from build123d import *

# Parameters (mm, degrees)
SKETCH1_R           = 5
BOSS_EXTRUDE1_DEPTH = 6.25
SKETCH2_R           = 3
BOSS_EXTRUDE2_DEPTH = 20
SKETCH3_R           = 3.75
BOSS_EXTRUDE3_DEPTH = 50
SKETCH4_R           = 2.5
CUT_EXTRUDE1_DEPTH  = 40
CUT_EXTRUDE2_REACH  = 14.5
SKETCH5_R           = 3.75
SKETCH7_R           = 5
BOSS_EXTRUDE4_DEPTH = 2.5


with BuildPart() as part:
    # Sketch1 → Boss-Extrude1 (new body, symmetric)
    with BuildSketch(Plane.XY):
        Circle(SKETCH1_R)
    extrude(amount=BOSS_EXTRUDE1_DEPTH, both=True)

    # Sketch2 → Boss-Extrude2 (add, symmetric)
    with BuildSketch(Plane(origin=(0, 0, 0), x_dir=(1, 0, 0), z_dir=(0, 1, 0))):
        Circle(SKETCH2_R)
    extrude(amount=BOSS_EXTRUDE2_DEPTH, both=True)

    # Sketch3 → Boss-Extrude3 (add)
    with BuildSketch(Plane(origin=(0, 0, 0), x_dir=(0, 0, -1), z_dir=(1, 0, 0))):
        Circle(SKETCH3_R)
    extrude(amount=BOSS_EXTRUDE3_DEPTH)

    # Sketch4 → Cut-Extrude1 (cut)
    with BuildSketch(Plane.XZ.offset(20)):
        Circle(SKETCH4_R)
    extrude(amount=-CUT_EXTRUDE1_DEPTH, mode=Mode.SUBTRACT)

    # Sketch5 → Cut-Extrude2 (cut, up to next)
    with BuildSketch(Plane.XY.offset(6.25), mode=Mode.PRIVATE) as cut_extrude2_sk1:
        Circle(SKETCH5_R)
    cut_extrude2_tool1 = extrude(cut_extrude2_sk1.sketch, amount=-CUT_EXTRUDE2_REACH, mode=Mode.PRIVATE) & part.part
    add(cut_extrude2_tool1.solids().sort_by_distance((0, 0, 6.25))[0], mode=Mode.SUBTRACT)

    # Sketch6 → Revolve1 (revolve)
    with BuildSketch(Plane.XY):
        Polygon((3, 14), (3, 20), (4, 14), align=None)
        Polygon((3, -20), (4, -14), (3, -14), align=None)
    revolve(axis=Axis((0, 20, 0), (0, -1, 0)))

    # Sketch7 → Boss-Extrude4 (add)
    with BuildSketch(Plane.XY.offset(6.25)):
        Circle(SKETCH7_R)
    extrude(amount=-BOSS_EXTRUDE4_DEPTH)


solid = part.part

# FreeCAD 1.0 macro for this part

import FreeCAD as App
import Part
import Sketcher
from FreeCAD import Vector

doc = App.newDocument("Part")
body = doc.addObject("PartDesign::Body", "Body")

sketch1 = body.newObject("Sketcher::SketchObject", "Sketch")
sketch1.AttachmentSupport = (doc.getObject("XY_Plane"), [""])
sketch1.MapMode = "FlatFace"
sketch1.addGeometry(Part.Circle(Vector(0, 0, 0), Vector(0, 0, 1), 5), False)
sketch1.addConstraint(Sketcher.Constraint("Coincident", 0, 3, -1, 1))
sketch1.addConstraint(Sketcher.Constraint("Diameter", 0, 10.0))
pad1 = body.newObject("PartDesign::Pad", "Pad")
pad1.Profile = sketch1
pad1.Length = 12.5
pad1.Midplane = True

sketch2 = body.newObject("Sketcher::SketchObject", "Sketch001")
sketch2.AttachmentSupport = (doc.getObject("XZ_Plane"), [""])
sketch2.MapMode = "FlatFace"
sketch2.addGeometry(Part.Circle(Vector(0, 0, 0), Vector(0, 0, 1), 3), False)
sketch2.addConstraint(Sketcher.Constraint("Coincident", 0, 3, -1, 1))
sketch2.addConstraint(Sketcher.Constraint("Diameter", 0, 6.0))
pad2 = body.newObject("PartDesign::Pad", "Pad001")
pad2.Profile = sketch2
pad2.Length = 40
pad2.Midplane = True

sketch3 = body.newObject("Sketcher::SketchObject", "Sketch002")
sketch3.AttachmentSupport = (doc.getObject("YZ_Plane"), [""])
sketch3.MapMode = "FlatFace"
sketch3.addGeometry(Part.Circle(Vector(0, 0, 0), Vector(0, 0, 1), 3.8), False)
sketch3.addConstraint(Sketcher.Constraint("Coincident", 0, 3, -1, 1))
sketch3.addConstraint(Sketcher.Constraint("Diameter", 0, 7.5))
pad3 = body.newObject("PartDesign::Pad", "Pad002")
pad3.Profile = sketch3
pad3.Length = 50

sketch4 = body.newObject("Sketcher::SketchObject", "Sketch003")
sketch4.AttachmentSupport = (doc.getObject("XZ_Plane"), [""])
sketch4.MapMode = "FlatFace"
sketch4.AttachmentOffset = App.Placement(Vector(0, 0, 20), App.Rotation())
sketch4.addGeometry(Part.Circle(Vector(0, 0, 0), Vector(0, 0, 1), 2.5), False)
sketch4.addConstraint(Sketcher.Constraint("Coincident", 0, 3, -1, 1))
sketch4.addConstraint(Sketcher.Constraint("Diameter", 0, 5.0))
pocket1 = body.newObject("PartDesign::Pocket", "Pocket")
pocket1.Profile = sketch4
pocket1.Length = 40

sketch5 = body.newObject("Sketcher::SketchObject", "Sketch004")
sketch5.AttachmentSupport = (doc.getObject("XY_Plane"), [""])
sketch5.MapMode = "FlatFace"
sketch5.AttachmentOffset = App.Placement(Vector(0, 0, 6.25), App.Rotation())
sketch5.addGeometry(Part.Circle(Vector(0, 0, 0), Vector(0, 0, 1), 3.8), False)
sketch5.addConstraint(Sketcher.Constraint("Coincident", 0, 3, -1, 1))
sketch5.addConstraint(Sketcher.Constraint("Diameter", 0, 7.5))
pocket2 = body.newObject("PartDesign::Pocket", "Pocket001")
pocket2.Profile = sketch5
pocket2.Type = "UpToFirst"

sketch6 = body.newObject("Sketcher::SketchObject", "Sketch005")
sketch6.AttachmentSupport = (doc.getObject("XY_Plane"), [""])
sketch6.MapMode = "FlatFace"
sketch6.addGeometry(Part.LineSegment(Vector(3, 20, 0), Vector(3, 14, 0)), False)
sketch6.addGeometry(Part.LineSegment(Vector(3, 14, 0), Vector(4, 14, 0)), False)
sketch6.addGeometry(Part.LineSegment(Vector(4, 14, 0), Vector(3, 20, 0)), False)
sketch6.addGeometry(Part.LineSegment(Vector(3, -20, 0), Vector(4, -14, 0)), False)
sketch6.addGeometry(Part.LineSegment(Vector(4, -14, 0), Vector(3, -14, 0)), False)
sketch6.addGeometry(Part.LineSegment(Vector(3, -14, 0), Vector(3, -20, 0)), False)
sketch6.addConstraint(Sketcher.Constraint("Coincident", 0, 2, 1, 1))
sketch6.addConstraint(Sketcher.Constraint("Coincident", 1, 2, 2, 1))
sketch6.addConstraint(Sketcher.Constraint("Coincident", 2, 2, 0, 1))
sketch6.addConstraint(Sketcher.Constraint("Coincident", 3, 2, 4, 1))
sketch6.addConstraint(Sketcher.Constraint("Coincident", 4, 2, 5, 1))
sketch6.addConstraint(Sketcher.Constraint("Coincident", 5, 2, 3, 1))
sketch6.addConstraint(Sketcher.Constraint("Vertical", 0))
sketch6.addConstraint(Sketcher.Constraint("Horizontal", 1))
sketch6.addConstraint(Sketcher.Constraint("Horizontal", 4))
sketch6.addConstraint(Sketcher.Constraint("Vertical", 5))
sketch6.addConstraint(Sketcher.Constraint("Symmetric", 1, 2, 3, 2, -1))
sketch6.addConstraint(Sketcher.Constraint("Symmetric", 2, 2, 5, 2, -1))
sketch6.addConstraint(Sketcher.Constraint("DistanceX", 1, 1, 1, 2, 1.0))
sketch6.addConstraint(Sketcher.Constraint("DistanceY", 0, 2, 0, 1, 6.0))
sketch6.addConstraint(Sketcher.Constraint("DistanceX", -1, 1, 0, 2, 3.0))
sketch6.addConstraint(Sketcher.Constraint("DistanceY", -1, 1, 0, 2, 14.0))
revolution = body.newObject("PartDesign::Revolution", "Revolution")
revolution.Profile = sketch6
revolution.ReferenceAxis = (sketch6, ["V_Axis"])
revolution.Angle = 360

sketch7 = body.newObject("Sketcher::SketchObject", "Sketch006")
sketch7.AttachmentSupport = (doc.getObject("XY_Plane"), [""])
sketch7.MapMode = "FlatFace"
sketch7.AttachmentOffset = App.Placement(Vector(0, 0, 6.25), App.Rotation())
sketch7.addGeometry(Part.Circle(Vector(0, 0, 0), Vector(0, 0, 1), 5), False)
sketch7.addConstraint(Sketcher.Constraint("Coincident", 0, 3, -1, 1))
sketch7.addConstraint(Sketcher.Constraint("Diameter", 0, 10.0))
pad4 = body.newObject("PartDesign::Pad", "Pad003")
pad4.Profile = sketch7
pad4.Length = 2.5
pad4.Reversed = True

doc.recompute()
